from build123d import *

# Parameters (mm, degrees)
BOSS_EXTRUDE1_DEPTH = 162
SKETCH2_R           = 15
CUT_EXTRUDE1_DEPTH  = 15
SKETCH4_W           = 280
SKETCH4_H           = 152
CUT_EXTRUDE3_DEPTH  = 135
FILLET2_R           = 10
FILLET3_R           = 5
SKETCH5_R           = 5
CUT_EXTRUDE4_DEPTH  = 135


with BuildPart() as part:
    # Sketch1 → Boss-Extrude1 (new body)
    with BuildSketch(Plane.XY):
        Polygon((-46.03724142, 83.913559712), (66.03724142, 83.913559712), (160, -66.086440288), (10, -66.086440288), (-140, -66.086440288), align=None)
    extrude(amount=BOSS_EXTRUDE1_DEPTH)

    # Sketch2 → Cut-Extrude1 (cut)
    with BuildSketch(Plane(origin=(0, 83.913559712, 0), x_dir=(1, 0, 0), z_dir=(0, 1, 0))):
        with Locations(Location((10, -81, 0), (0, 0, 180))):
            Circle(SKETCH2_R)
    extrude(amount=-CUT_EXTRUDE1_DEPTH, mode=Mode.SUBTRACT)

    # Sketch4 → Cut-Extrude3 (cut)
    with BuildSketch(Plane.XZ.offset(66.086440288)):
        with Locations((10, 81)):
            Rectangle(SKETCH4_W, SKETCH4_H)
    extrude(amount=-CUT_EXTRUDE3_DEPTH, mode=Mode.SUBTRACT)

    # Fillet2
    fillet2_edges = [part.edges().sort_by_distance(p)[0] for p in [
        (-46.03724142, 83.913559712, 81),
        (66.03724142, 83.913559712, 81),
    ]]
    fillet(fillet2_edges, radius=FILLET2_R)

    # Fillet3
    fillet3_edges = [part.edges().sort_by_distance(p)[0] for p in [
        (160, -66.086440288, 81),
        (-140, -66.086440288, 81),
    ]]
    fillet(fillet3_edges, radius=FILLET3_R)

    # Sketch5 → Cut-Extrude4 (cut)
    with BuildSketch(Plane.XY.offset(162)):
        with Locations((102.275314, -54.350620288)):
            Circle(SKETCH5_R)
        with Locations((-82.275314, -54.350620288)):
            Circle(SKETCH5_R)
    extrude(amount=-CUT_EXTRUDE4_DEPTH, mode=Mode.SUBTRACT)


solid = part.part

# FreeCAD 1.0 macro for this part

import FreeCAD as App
import Part
import Sketcher
from FreeCAD import Vector
Q = App.Units.Quantity


def edges_at(feature, points):
    """Names of the edges that pass closest to the given points."""
    edges = feature.Shape.Edges
    near = lambda p: min(range(len(edges)), key=lambda i: edges[i].distToShape(Part.Vertex(*p))[0])
    return sorted({f"Edge{near(p) + 1}" for p in points})


def add_polygon(sketch, points):
    """Adds a closed chain of lines whose ends are joined by coincident constraints."""
    first, n = sketch.GeometryCount, len(points)
    for a, b in zip(points, points[1:] + points[:1]):
        sketch.addGeometry(Part.LineSegment(App.Vector(*a, 0), App.Vector(*b, 0)), False)
    for i in range(n):
        sketch.addConstraint(Sketcher.Constraint("Coincident", first + i, 2, first + (i + 1) % n, 1))

doc = App.newDocument("Part")
body = doc.addObject("PartDesign::Body", "Body")

# Sketch on XY plane
sketch1 = body.newObject("Sketcher::SketchObject", "Sketch")
sketch1.AttachmentSupport = (doc.getObject("XY_Plane"), [""])
sketch1.MapMode = "FlatFace"
add_polygon(sketch1, [(66, 84), (-46, 84), (-140, -66), (160, -66)])  # lines 0-3
sketch1.addConstraint([
    Sketcher.Constraint("Horizontal", 0),
    Sketcher.Constraint("Horizontal", 2),
    Sketcher.Constraint("Equal", 1, 3),
    Sketcher.Constraint("DistanceX", 2, 1, 2, 2, Q("300 mm")),
    Sketcher.Constraint("Distance", 1, Q("177 mm")),
    Sketcher.Constraint("DistanceX", 1, 2, -1, 1, Q("140 mm")),
    Sketcher.Constraint("DistanceY", 1, 2, 0, 2, Q("150 mm")),
    Sketcher.Constraint("DistanceY", -1, 1, 0, 2, Q("83.91356 mm")),
])
pad1 = body.newObject("PartDesign::Pad", "Pad")
pad1.Profile = sketch1
pad1.Length = 162

# Sketch on XZ plane
sketch2 = body.newObject("Sketcher::SketchObject", "Sketch001")
sketch2.AttachmentSupport = (doc.getObject("XZ_Plane"), [""])
sketch2.MapMode = "FlatFace"
sketch2.AttachmentOffset = App.Placement(Vector(0, 0, -83.91356), App.Rotation())
sketch2.addGeometry(Part.Circle(Vector(10, 81, 0), Vector(0, 0, 1), 15), False)
sketch2.addConstraint([
    Sketcher.Constraint("Diameter", 0, Q("30 mm")),
    Sketcher.Constraint("DistanceX", -1, 1, 0, 3, Q("10 mm")),
    Sketcher.Constraint("DistanceY", -1, 1, 0, 3, Q("81 mm")),
])
pocket1 = body.newObject("PartDesign::Pocket", "Pocket")
pocket1.Profile = sketch2
pocket1.Length = 15
pocket1.Reversed = True

# Sketch on XZ plane
sketch3 = body.newObject("Sketcher::SketchObject", "Sketch002")
sketch3.AttachmentSupport = (doc.getObject("XZ_Plane"), [""])
sketch3.MapMode = "FlatFace"
sketch3.AttachmentOffset = App.Placement(Vector(0, 0, 66.08644), App.Rotation())
add_polygon(sketch3, [(-130, 157), (-130, 5), (150, 5), (150, 157)])  # lines 0-3
sketch3.addConstraint([
    Sketcher.Constraint("Vertical", 0),
    Sketcher.Constraint("Horizontal", 1),
    Sketcher.Constraint("Vertical", 2),
    Sketcher.Constraint("Horizontal", 3),
    Sketcher.Constraint("DistanceX", 1, 1, 1, 2, Q("280 mm")),
    Sketcher.Constraint("DistanceY", 0, 2, 0, 1, Q("152 mm")),
    Sketcher.Constraint("DistanceX", 0, 2, -1, 1, Q("130 mm")),
    Sketcher.Constraint("DistanceY", -1, 1, 0, 2, Q("5 mm")),
])
pocket2 = body.newObject("PartDesign::Pocket", "Pocket001")
pocket2.Profile = sketch3
pocket2.Length = 135
doc.recompute()

fillet = body.newObject("PartDesign::Fillet", "Fillet")
fillet.Base = (pocket2, edges_at(pocket2, [(-46.037, 83.914, 81), (66.037, 83.914, 81)]))
fillet.Radius = 10
doc.recompute()

fillet2 = body.newObject("PartDesign::Fillet", "Fillet001")
fillet2.Base = (fillet, edges_at(fillet, [(160, -66.086, 81), (-140, -66.086, 81)]))
fillet2.Radius = 5

# Sketch on XY plane
sketch4 = body.newObject("Sketcher::SketchObject", "Sketch003")
sketch4.AttachmentSupport = (doc.getObject("XY_Plane"), [""])
sketch4.MapMode = "FlatFace"
sketch4.AttachmentOffset = App.Placement(Vector(0, 0, 162), App.Rotation())
sketch4.addGeometry([
    Part.Circle(Vector(102, -54, 0), Vector(0, 0, 1), 5),
    Part.Circle(Vector(-82, -54, 0), Vector(0, 0, 1), 5),
], False)
sketch4.addConstraint([
    Sketcher.Constraint("Equal", 0, 1),
    Sketcher.Constraint("Horizontal", 0, 3, 1, 3),
    Sketcher.Constraint("Diameter", 0, Q("10 mm")),
    Sketcher.Constraint("DistanceY", 0, 3, -1, 1, Q("54.35062 mm")),
    Sketcher.Constraint("DistanceX", -1, 1, 0, 3, Q("102.275314 mm")),
    Sketcher.Constraint("DistanceX", 1, 3, -1, 1, Q("82.275314 mm")),
])
pocket3 = body.newObject("PartDesign::Pocket", "Pocket002")
pocket3.Profile = sketch4
pocket3.Length = 135

doc.recompute()
